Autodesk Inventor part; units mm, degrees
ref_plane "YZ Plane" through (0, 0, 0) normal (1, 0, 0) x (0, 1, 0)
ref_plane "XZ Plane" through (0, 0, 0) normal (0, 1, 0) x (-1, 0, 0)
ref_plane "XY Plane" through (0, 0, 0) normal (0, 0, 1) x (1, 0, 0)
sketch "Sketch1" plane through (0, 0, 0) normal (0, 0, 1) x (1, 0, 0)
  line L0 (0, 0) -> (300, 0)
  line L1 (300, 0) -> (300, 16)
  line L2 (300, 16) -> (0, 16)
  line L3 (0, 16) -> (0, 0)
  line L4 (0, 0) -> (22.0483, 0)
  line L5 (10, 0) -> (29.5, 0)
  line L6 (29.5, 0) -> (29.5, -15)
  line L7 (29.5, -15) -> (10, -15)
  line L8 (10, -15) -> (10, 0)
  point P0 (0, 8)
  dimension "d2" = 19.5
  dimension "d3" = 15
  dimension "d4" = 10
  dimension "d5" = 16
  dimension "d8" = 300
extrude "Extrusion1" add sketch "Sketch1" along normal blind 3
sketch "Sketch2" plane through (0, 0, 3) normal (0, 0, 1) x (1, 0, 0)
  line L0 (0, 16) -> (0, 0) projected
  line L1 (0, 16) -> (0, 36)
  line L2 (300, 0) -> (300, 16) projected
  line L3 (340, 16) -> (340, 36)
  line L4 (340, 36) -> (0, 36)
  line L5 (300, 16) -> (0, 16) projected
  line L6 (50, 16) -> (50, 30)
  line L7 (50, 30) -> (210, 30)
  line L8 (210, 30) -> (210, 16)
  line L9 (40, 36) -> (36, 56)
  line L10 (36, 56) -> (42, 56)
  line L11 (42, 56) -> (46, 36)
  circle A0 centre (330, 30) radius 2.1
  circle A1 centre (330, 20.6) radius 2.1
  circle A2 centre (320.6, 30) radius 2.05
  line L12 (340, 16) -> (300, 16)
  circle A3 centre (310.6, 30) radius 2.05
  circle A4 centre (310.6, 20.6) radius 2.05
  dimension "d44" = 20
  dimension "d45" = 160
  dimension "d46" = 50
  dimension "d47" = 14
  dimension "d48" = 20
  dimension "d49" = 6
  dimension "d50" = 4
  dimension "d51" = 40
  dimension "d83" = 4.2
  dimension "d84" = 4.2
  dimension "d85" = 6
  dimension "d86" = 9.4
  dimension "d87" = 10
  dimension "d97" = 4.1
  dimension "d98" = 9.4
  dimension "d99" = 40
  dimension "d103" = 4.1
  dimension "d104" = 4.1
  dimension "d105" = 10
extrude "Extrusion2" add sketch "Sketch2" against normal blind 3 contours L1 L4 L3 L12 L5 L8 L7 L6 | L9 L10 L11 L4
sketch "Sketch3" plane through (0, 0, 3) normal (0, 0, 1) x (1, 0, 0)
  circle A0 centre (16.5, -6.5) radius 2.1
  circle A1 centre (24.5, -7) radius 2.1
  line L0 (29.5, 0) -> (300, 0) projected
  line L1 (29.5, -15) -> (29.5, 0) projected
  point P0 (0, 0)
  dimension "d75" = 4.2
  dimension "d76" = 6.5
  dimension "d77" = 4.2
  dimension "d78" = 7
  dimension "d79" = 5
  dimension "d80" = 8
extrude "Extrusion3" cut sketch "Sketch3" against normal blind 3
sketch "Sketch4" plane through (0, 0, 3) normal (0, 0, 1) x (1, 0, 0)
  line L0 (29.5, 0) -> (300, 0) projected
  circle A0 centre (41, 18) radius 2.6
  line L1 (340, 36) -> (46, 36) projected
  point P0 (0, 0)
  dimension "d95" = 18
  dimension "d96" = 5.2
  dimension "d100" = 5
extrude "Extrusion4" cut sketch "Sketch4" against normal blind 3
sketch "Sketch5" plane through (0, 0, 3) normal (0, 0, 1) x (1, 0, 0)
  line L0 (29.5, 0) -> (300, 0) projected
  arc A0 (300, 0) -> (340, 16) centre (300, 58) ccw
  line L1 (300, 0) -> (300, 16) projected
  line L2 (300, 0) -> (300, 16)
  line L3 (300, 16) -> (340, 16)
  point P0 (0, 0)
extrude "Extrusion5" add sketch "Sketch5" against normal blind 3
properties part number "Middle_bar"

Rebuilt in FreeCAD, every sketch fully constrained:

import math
import FreeCAD as App
import Part
import Sketcher

V = App.Vector
Q = App.Units.Quantity

doc = App.newDocument("Part")
body = doc.addObject("PartDesign::Body", "Body")

sketch1 = body.newObject("Sketcher::SketchObject", "Sketch")
sketch1.AttachmentSupport = (doc.getObject("XY_Plane"), [""])
sketch1.MapMode = "FlatFace"
sketch1.addGeometry(Part.LineSegment(V(0, 16, 0), V(0, 0, 0)), False)
sketch1.addGeometry(Part.LineSegment(V(0, 0, 0), V(10, 0, 0)), False)
sketch1.addGeometry(Part.LineSegment(V(10, 0, 0), V(10, -15, 0)), False)
sketch1.addGeometry(Part.LineSegment(V(10, -15, 0), V(30, -15, 0)), False)
sketch1.addGeometry(Part.LineSegment(V(30, -15, 0), V(30, 0, 0)), False)
sketch1.addGeometry(Part.LineSegment(V(30, 0, 0), V(300, 0, 0)), False)
sketch1.addGeometry(Part.LineSegment(V(300, 0, 0), V(300, 16, 0)), False)
sketch1.addGeometry(Part.LineSegment(V(300, 16, 0), V(0, 16, 0)), False)
sketch1.addConstraint(Sketcher.Constraint("Coincident", 0, 2, 1, 1))
sketch1.addConstraint(Sketcher.Constraint("Coincident", 1, 2, 2, 1))
sketch1.addConstraint(Sketcher.Constraint("Coincident", 2, 2, 3, 1))
sketch1.addConstraint(Sketcher.Constraint("Coincident", 3, 2, 4, 1))
sketch1.addConstraint(Sketcher.Constraint("Coincident", 4, 2, 5, 1))
sketch1.addConstraint(Sketcher.Constraint("Coincident", 5, 2, 6, 1))
sketch1.addConstraint(Sketcher.Constraint("Coincident", 6, 2, 7, 1))
sketch1.addConstraint(Sketcher.Constraint("Coincident", 7, 2, 0, 1))
sketch1.addConstraint(Sketcher.Constraint("Vertical", 0))
sketch1.addConstraint(Sketcher.Constraint("Horizontal", 1))
sketch1.addConstraint(Sketcher.Constraint("Vertical", 2))
sketch1.addConstraint(Sketcher.Constraint("Horizontal", 3))
sketch1.addConstraint(Sketcher.Constraint("Vertical", 4))
sketch1.addConstraint(Sketcher.Constraint("Horizontal", 5))
sketch1.addConstraint(Sketcher.Constraint("Vertical", 6))
sketch1.addConstraint(Sketcher.Constraint("Horizontal", 7))
sketch1.addConstraint(Sketcher.Constraint("Coincident", 0, 2, -1, 1))
sketch1.addConstraint(Sketcher.Constraint("PointOnObject", 4, 2, -1))
sketch1.addConstraint(Sketcher.Constraint("DistanceX", 1, 1, 1, 2, Q("10 mm")))
sketch1.addConstraint(Sketcher.Constraint("DistanceX", 7, 2, 7, 1, Q("300 mm")))
sketch1.addConstraint(Sketcher.Constraint("DistanceY", 0, 2, 0, 1, Q("16 mm")))
sketch1.addConstraint(Sketcher.Constraint("DistanceY", 2, 2, 2, 1, Q("15 mm")))
sketch1.addConstraint(Sketcher.Constraint("DistanceX", 3, 1, 3, 2, Q("19.5 mm")))
pad1 = body.newObject("PartDesign::Pad", "Pad")
pad1.Profile = sketch1
pad1.Length = 3

sketch2 = body.newObject("Sketcher::SketchObject", "Sketch001")
sketch2.AttachmentSupport = (doc.getObject("XY_Plane"), [""])
sketch2.MapMode = "FlatFace"
sketch2.AttachmentOffset = App.Placement(V(0, 0, 3), App.Rotation())
sketch2.addGeometry(Part.LineSegment(V(0, 36, 0), V(0, 16, 0)), False)
sketch2.addGeometry(Part.LineSegment(V(0, 16, 0), V(50, 16, 0)), False)
sketch2.addGeometry(Part.LineSegment(V(50, 16, 0), V(50, 30, 0)), False)
sketch2.addGeometry(Part.LineSegment(V(50, 30, 0), V(210, 30, 0)), False)
sketch2.addGeometry(Part.LineSegment(V(210, 30, 0), V(210, 16, 0)), False)
sketch2.addGeometry(Part.LineSegment(V(210, 16, 0), V(340, 16, 0)), False)
sketch2.addGeometry(Part.LineSegment(V(340, 16, 0), V(340, 36, 0)), False)
sketch2.addGeometry(Part.LineSegment(V(340, 36, 0), V(46, 36, 0)), False)
sketch2.addGeometry(Part.LineSegment(V(46, 36, 0), V(42, 56, 0)), False)
sketch2.addGeometry(Part.LineSegment(V(42, 56, 0), V(36, 56, 0)), False)
sketch2.addGeometry(Part.LineSegment(V(36, 56, 0), V(40, 36, 0)), False)
sketch2.addGeometry(Part.LineSegment(V(40, 36, 0), V(0, 36, 0)), False)
sketch2.addGeometry(Part.Circle(V(310.6, 20.6, 0), V(0, 0, 1), 2), False)
sketch2.addGeometry(Part.Circle(V(330, 20.6, 0), V(0, 0, 1), 2.1), False)
sketch2.addGeometry(Part.Circle(V(310.6, 30, 0), V(0, 0, 1), 2), False)
sketch2.addGeometry(Part.Circle(V(320.6, 30, 0), V(0, 0, 1), 2), False)
sketch2.addGeometry(Part.Circle(V(330, 30, 0), V(0, 0, 1), 2.1), False)
sketch2.addConstraint(Sketcher.Constraint("Coincident", 0, 2, 1, 1))
sketch2.addConstraint(Sketcher.Constraint("Coincident", 1, 2, 2, 1))
sketch2.addConstraint(Sketcher.Constraint("Coincident", 2, 2, 3, 1))
sketch2.addConstraint(Sketcher.Constraint("Coincident", 3, 2, 4, 1))
sketch2.addConstraint(Sketcher.Constraint("Coincident", 4, 2, 5, 1))
sketch2.addConstraint(Sketcher.Constraint("Coincident", 5, 2, 6, 1))
sketch2.addConstraint(Sketcher.Constraint("Coincident", 6, 2, 7, 1))
sketch2.addConstraint(Sketcher.Constraint("Coincident", 7, 2, 8, 1))
sketch2.addConstraint(Sketcher.Constraint("Coincident", 8, 2, 9, 1))
sketch2.addConstraint(Sketcher.Constraint("Coincident", 9, 2, 10, 1))
sketch2.addConstraint(Sketcher.Constraint("Coincident", 10, 2, 11, 1))
sketch2.addConstraint(Sketcher.Constraint("Coincident", 11, 2, 0, 1))
sketch2.addConstraint(Sketcher.Constraint("Vertical", 0))
sketch2.addConstraint(Sketcher.Constraint("Horizontal", 1))
sketch2.addConstraint(Sketcher.Constraint("Vertical", 2))
sketch2.addConstraint(Sketcher.Constraint("Horizontal", 3))
sketch2.addConstraint(Sketcher.Constraint("Vertical", 4))
sketch2.addConstraint(Sketcher.Constraint("Horizontal", 5))
sketch2.addConstraint(Sketcher.Constraint("Vertical", 6))
sketch2.addConstraint(Sketcher.Constraint("Horizontal", 7))
sketch2.addConstraint(Sketcher.Constraint("Horizontal", 9))
sketch2.addConstraint(Sketcher.Constraint("Horizontal", 11))
sketch2.addConstraint(Sketcher.Constraint("Equal", 12, 14))
sketch2.addConstraint(Sketcher.Constraint("Equal", 14, 15))
sketch2.addConstraint(Sketcher.Constraint("Equal", 13, 16))
sketch2.addConstraint(Sketcher.Constraint("PointOnObject", 0, 2, -2))
sketch2.addConstraint(Sketcher.Constraint("Parallel", 8, 10))
sketch2.addConstraint(Sketcher.Constraint("Horizontal", 12, 3, 13, 3))
sketch2.addConstraint(Sketcher.Constraint("Horizontal", 14, 3, 15, 3))
sketch2.addConstraint(Sketcher.Constraint("Horizontal", 15, 3, 16, 3))
sketch2.addConstraint(Sketcher.Constraint("Horizontal", 16, 3, 2, 2))
sketch2.addConstraint(Sketcher.Constraint("Horizontal", 1, 2, 4, 2))
sketch2.addConstraint(Sketcher.Constraint("Horizontal", 7, 2, 10, 2))
sketch2.addConstraint(Sketcher.Constraint("Vertical", 12, 3, 14, 3))
sketch2.addConstraint(Sketcher.Constraint("Vertical", 13, 3, 16, 3))
sketch2.addConstraint(Sketcher.Constraint("Diameter", 12, Q("4.1 mm")))
sketch2.addConstraint(Sketcher.Constraint("Diameter", 13, Q("4.2 mm")))
sketch2.addConstraint(Sketcher.Constraint("DistanceX", 1, 1, 1, 2, Q("50 mm")))
sketch2.addConstraint(Sketcher.Constraint("DistanceX", 3, 1, 3, 2, Q("160 mm")))
sketch2.addConstraint(Sketcher.Constraint("DistanceX", 9, 2, 9, 1, Q("6 mm")))
sketch2.addConstraint(Sketcher.Constraint("DistanceX", 11, 2, 11, 1, Q("40 mm")))
sketch2.addConstraint(Sketcher.Constraint("DistanceY", 0, 2, 0, 1, Q("20 mm")))
sketch2.addConstraint(Sketcher.Constraint("DistanceY", 2, 1, 2, 2, Q("14 mm")))
sketch2.addConstraint(Sketcher.Constraint("DistanceX", 14, 3, 15, 3, Q("10 mm")))
sketch2.addConstraint(Sketcher.Constraint("DistanceX", 13, 3, 5, 2, Q("10 mm")))
sketch2.addConstraint(Sketcher.Constraint("DistanceX", 8, 2, 7, 2, Q("4 mm")))
sketch2.addConstraint(Sketcher.Constraint("DistanceY", 7, 2, 8, 2, Q("20 mm")))
sketch2.addConstraint(Sketcher.Constraint("DistanceY", 12, 3, 14, 3, Q("9.4 mm")))
sketch2.addConstraint(Sketcher.Constraint("DistanceX", 15, 3, 13, 3, Q("9.4 mm")))
sketch2.addConstraint(Sketcher.Constraint("DistanceX", 5, 1, 5, 2, Q("130 mm")))
sketch2.addConstraint(Sketcher.Constraint("DistanceY", -1, 1, 14, 3, Q("30 mm")))
pad2 = body.newObject("PartDesign::Pad", "Pad001")
pad2.Profile = sketch2
pad2.Length = 3
pad2.Reversed = True

sketch3 = body.newObject("Sketcher::SketchObject", "Sketch002")
sketch3.AttachmentSupport = (doc.getObject("XY_Plane"), [""])
sketch3.MapMode = "FlatFace"
sketch3.AttachmentOffset = App.Placement(V(0, 0, 3), App.Rotation())
sketch3.addGeometry(Part.Circle(V(16.5, -6.5, 0), V(0, 0, 1), 2.1), False)
sketch3.addGeometry(Part.Circle(V(24.5, -7, 0), V(0, 0, 1), 2.1), False)
sketch3.addConstraint(Sketcher.Constraint("Equal", 0, 1))
sketch3.addConstraint(Sketcher.Constraint("Diameter", 0, Q("4.2 mm")))
sketch3.addConstraint(Sketcher.Constraint("DistanceY", 1, 3, -1, 1, Q("7 mm")))
sketch3.addConstraint(Sketcher.Constraint("DistanceX", 0, 3, 1, 3, Q("8 mm")))
sketch3.addConstraint(Sketcher.Constraint("DistanceY", 0, 3, -1, 1, Q("6.5 mm")))
sketch3.addConstraint(Sketcher.Constraint("DistanceX", -1, 1, 0, 3, Q("16.5 mm")))
pocket1 = body.newObject("PartDesign::Pocket", "Pocket")
pocket1.Profile = sketch3
pocket1.Length = 3

sketch4 = body.newObject("Sketcher::SketchObject", "Sketch003")
sketch4.AttachmentSupport = (doc.getObject("XY_Plane"), [""])
sketch4.MapMode = "FlatFace"
sketch4.AttachmentOffset = App.Placement(V(0, 0, 3), App.Rotation())
sketch4.addGeometry(Part.Circle(V(41, 18, 0), V(0, 0, 1), 2.6), False)
sketch4.addConstraint(Sketcher.Constraint("Diameter", 0, Q("5.2 mm")))
sketch4.addConstraint(Sketcher.Constraint("DistanceY", -1, 1, 0, 3, Q("18 mm")))
sketch4.addConstraint(Sketcher.Constraint("DistanceX", -1, 1, 0, 3, Q("41 mm")))
pocket2 = body.newObject("PartDesign::Pocket", "Pocket001")
pocket2.Profile = sketch4
pocket2.Length = 3

sketch5 = body.newObject("Sketcher::SketchObject", "Sketch004")
sketch5.AttachmentSupport = (doc.getObject("XY_Plane"), [""])
sketch5.MapMode = "FlatFace"
sketch5.AttachmentOffset = App.Placement(V(0, 0, 3), App.Rotation())
sketch5.addGeometry(Part.LineSegment(V(300, 16, 0), V(300, 0, 0)), False)
sketch5.addGeometry(Part.ArcOfCircle(Part.Circle(V(300, 58, 0), V(0, 0, 1), 58), math.radians(-90), math.radians(-46)), False)
sketch5.addGeometry(Part.LineSegment(V(340, 16, 0), V(300, 16, 0)), False)
sketch5.addConstraint(Sketcher.Constraint("Coincident", 0, 2, 1, 1))
sketch5.addConstraint(Sketcher.Constraint("Coincident", 1, 2, 2, 1))
sketch5.addConstraint(Sketcher.Constraint("Coincident", 2, 2, 0, 1))
sketch5.addConstraint(Sketcher.Constraint("Vertical", 0))
sketch5.addConstraint(Sketcher.Constraint("Horizontal", 2))
sketch5.addConstraint(Sketcher.Constraint("PointOnObject", 0, 2, -1))
sketch5.addConstraint(Sketcher.Constraint("Vertical", 1, 3, 0, 2))
sketch5.addConstraint(Sketcher.Constraint("Radius", 1, Q("58 mm")))
sketch5.addConstraint(Sketcher.Constraint("DistanceX", 2, 2, 2, 1, Q("40 mm")))
sketch5.addConstraint(Sketcher.Constraint("DistanceX", -1, 1, 1, 3, Q("300 mm")))
pad3 = body.newObject("PartDesign::Pad", "Pad002")
pad3.Profile = sketch5
pad3.Length = 3
pad3.Reversed = True

doc.recompute()
